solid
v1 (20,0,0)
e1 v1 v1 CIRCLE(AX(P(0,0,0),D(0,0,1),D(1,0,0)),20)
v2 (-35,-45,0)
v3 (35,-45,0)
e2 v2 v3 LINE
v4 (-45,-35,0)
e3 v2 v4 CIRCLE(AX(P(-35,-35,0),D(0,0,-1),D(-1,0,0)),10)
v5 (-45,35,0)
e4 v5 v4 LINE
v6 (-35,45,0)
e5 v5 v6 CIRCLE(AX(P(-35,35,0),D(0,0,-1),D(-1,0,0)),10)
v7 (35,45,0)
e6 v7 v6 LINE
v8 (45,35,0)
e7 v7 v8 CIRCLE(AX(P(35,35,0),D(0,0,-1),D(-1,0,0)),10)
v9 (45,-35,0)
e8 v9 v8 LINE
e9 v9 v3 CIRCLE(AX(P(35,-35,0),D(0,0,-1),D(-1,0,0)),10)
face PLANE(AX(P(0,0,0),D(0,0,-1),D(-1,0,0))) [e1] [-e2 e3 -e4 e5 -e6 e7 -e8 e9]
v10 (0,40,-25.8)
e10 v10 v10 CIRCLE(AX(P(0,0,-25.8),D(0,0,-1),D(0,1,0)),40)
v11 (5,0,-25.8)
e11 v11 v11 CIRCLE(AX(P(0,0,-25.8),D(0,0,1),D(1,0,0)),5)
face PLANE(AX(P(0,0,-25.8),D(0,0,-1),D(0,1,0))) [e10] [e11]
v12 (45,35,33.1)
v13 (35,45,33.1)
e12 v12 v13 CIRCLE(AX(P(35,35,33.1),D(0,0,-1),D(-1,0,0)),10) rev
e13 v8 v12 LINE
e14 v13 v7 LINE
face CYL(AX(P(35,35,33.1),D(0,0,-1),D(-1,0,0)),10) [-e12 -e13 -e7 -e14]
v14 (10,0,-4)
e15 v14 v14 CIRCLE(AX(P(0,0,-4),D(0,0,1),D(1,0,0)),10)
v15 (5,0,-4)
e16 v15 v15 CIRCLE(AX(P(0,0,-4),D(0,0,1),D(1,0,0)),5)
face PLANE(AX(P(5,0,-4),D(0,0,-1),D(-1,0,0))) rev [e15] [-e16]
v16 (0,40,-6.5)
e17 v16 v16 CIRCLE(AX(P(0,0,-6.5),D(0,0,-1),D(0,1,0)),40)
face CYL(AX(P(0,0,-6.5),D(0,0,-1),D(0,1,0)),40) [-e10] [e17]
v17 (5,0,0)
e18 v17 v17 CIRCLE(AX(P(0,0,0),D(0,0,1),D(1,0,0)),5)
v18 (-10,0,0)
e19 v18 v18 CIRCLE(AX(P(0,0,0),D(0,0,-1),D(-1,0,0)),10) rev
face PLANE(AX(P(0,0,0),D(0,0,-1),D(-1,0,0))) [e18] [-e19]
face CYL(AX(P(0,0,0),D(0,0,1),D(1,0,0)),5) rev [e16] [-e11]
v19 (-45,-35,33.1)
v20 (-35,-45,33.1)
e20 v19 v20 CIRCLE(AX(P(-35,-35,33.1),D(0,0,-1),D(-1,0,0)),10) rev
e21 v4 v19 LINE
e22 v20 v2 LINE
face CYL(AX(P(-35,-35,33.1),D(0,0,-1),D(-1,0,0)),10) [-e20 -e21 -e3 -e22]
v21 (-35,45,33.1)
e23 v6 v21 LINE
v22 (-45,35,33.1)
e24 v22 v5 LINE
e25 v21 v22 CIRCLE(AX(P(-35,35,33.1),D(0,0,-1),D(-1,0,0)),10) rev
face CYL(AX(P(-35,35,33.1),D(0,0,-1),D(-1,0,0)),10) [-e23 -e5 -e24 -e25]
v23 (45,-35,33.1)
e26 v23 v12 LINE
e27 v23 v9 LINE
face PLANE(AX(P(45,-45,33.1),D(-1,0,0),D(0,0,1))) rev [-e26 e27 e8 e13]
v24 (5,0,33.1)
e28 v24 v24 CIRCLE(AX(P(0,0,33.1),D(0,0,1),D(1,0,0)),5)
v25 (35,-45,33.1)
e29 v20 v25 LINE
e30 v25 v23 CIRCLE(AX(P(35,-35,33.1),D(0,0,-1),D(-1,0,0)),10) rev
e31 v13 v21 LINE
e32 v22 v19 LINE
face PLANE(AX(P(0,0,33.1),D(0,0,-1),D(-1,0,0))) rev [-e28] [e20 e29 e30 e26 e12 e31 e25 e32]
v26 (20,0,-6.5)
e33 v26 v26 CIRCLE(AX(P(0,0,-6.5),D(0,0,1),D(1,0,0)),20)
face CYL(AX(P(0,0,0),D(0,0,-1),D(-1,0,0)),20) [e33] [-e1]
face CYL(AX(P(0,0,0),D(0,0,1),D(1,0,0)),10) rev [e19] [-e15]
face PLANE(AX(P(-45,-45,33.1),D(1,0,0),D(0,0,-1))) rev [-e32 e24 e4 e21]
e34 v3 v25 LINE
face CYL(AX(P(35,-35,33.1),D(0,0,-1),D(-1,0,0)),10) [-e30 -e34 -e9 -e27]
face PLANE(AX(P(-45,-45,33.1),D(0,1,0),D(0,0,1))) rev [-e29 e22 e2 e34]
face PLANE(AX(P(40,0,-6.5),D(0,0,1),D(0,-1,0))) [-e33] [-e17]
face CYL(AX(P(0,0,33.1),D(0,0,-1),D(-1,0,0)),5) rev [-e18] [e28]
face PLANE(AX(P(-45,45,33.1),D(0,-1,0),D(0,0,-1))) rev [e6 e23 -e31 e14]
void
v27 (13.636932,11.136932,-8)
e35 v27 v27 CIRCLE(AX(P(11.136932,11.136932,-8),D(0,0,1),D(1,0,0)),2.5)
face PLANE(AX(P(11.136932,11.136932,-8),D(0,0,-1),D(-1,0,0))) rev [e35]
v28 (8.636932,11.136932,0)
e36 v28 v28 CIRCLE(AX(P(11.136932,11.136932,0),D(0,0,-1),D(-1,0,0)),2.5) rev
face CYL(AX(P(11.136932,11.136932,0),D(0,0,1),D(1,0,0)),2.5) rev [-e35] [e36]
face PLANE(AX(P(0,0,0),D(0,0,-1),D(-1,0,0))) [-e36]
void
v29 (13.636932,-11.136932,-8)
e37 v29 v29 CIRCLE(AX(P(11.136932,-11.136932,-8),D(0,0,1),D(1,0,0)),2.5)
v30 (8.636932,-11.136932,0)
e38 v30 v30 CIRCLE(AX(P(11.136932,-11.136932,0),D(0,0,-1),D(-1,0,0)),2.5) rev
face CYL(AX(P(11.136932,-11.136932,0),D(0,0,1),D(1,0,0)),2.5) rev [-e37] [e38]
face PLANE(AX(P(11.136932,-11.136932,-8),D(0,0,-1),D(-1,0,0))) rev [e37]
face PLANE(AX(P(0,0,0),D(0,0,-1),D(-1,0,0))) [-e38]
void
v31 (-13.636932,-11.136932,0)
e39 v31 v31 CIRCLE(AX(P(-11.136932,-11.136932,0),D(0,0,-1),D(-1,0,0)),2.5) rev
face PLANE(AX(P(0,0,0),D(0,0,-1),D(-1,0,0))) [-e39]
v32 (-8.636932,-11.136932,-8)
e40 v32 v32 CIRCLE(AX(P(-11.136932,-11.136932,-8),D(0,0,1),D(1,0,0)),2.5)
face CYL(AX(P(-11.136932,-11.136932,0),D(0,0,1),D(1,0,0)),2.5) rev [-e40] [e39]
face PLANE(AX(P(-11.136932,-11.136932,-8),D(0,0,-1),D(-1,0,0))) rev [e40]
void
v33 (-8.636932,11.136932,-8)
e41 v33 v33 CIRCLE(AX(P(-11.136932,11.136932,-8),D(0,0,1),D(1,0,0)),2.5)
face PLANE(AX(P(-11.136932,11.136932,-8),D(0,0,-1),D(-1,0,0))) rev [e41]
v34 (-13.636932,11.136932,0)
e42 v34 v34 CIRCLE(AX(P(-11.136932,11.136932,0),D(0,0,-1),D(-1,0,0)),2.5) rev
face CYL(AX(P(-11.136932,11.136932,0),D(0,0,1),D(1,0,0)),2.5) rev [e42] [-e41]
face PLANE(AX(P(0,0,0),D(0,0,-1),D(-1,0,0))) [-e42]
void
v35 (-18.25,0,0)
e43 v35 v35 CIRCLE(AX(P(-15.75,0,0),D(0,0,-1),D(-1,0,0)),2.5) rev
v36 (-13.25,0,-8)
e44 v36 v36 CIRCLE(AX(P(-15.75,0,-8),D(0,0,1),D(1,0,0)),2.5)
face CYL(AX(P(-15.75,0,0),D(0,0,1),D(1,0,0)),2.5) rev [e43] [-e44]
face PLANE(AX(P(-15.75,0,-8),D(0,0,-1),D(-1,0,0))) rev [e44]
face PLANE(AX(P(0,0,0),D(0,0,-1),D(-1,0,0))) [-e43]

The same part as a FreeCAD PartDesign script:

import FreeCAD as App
import Part
import Sketcher
from FreeCAD import Vector
Q = App.Units.Quantity


def edges_at(feature, points):
    """Names of the edges that pass closest to the given points."""
    edges = feature.Shape.Edges
    near = lambda p: min(range(len(edges)), key=lambda i: edges[i].distToShape(Part.Vertex(*p))[0])
    return sorted({f"Edge{near(p) + 1}" for p in points})

doc = App.newDocument("Part")
body = doc.addObject("PartDesign::Body", "Body")

# Sketch on XZ plane
sketch1 = body.newObject("Sketcher::SketchObject", "Sketch")
sketch1.AttachmentSupport = (doc.getObject("XZ_Plane"), [""])
sketch1.MapMode = "FlatFace"
sketch1.addGeometry(Part.LineSegment(Vector(0, -6, 0), Vector(0, -26, 0)), False)
sketch1.addGeometry(Part.LineSegment(Vector(0, -26, 0), Vector(40, -26, 0)), False)
sketch1.addGeometry(Part.LineSegment(Vector(40, -26, 0), Vector(40, -6, 0)), False)
sketch1.addGeometry(Part.LineSegment(Vector(40, -6, 0), Vector(0, -6, 0)), False)
sketch1.addConstraint(Sketcher.Constraint("Coincident", 0, 2, 1, 1))
sketch1.addConstraint(Sketcher.Constraint("Coincident", 1, 2, 2, 1))
sketch1.addConstraint(Sketcher.Constraint("Coincident", 2, 2, 3, 1))
sketch1.addConstraint(Sketcher.Constraint("Coincident", 3, 2, 0, 1))
sketch1.addConstraint(Sketcher.Constraint("Vertical", 0))
sketch1.addConstraint(Sketcher.Constraint("Horizontal", 1))
sketch1.addConstraint(Sketcher.Constraint("Vertical", 2))
sketch1.addConstraint(Sketcher.Constraint("Horizontal", 3))
sketch1.addConstraint(Sketcher.Constraint("PointOnObject", 0, 2, -2))
sketch1.addConstraint(Sketcher.Constraint("DistanceX", 1, 1, 1, 2, Q("40 mm")))
sketch1.addConstraint(Sketcher.Constraint("DistanceY", 0, 2, 0, 1, Q("19.3 mm")))
sketch1.addConstraint(Sketcher.Constraint("DistanceY", 0, 2, -1, 1, Q("25.8 mm")))
revolution = body.newObject("PartDesign::Revolution", "Revolution")
revolution.Profile = sketch1
revolution.ReferenceAxis = (sketch1, ["V_Axis"])
revolution.Angle = 360

# Sketch on XY plane
sketch2 = body.newObject("Sketcher::SketchObject", "Sketch001")
sketch2.AttachmentSupport = (doc.getObject("XY_Plane"), [""])
sketch2.MapMode = "FlatFace"
sketch2.AttachmentOffset = App.Placement(Vector(0, 0, -6.5), App.Rotation())
sketch2.addGeometry(Part.Circle(Vector(0, 0, 0), Vector(0, 0, 1), 20), False)
sketch2.addConstraint(Sketcher.Constraint("Coincident", 0, 3, -1, 1))
sketch2.addConstraint(Sketcher.Constraint("Diameter", 0, Q("40 mm")))
pad1 = body.newObject("PartDesign::Pad", "Pad")
pad1.Profile = sketch2
pad1.Length = 6.5

# Sketch on XY plane
sketch3 = body.newObject("Sketcher::SketchObject", "Sketch002")
sketch3.AttachmentSupport = (doc.getObject("XY_Plane"), [""])
sketch3.MapMode = "FlatFace"
sketch3.addGeometry(Part.Circle(Vector(0, 0, 0), Vector(0, 0, 1), 5), False)
sketch3.addConstraint(Sketcher.Constraint("Coincident", 0, 3, -1, 1))
sketch3.addConstraint(Sketcher.Constraint("Diameter", 0, Q("10 mm")))
doc.recompute()
hole = body.newObject("PartDesign::Hole", "Hole")
hole.Profile = sketch3
hole.ThreadType = "None"
hole.Diameter = 10
hole.DepthType = "ThroughAll"
hole.HoleCutType = "Counterbore"
hole.HoleCutDiameter = 20
hole.HoleCutDepth = 4

# Sketch on XY plane
sketch4 = body.newObject("Sketcher::SketchObject", "Sketch003")
sketch4.AttachmentSupport = (doc.getObject("XY_Plane"), [""])
sketch4.MapMode = "FlatFace"
sketch4.addGeometry(Part.Circle(Vector(-15.8, 0, 0), Vector(0, 0, 1), 2.5), False)
sketch4.addGeometry(Part.Circle(Vector(-11.1, 11.1, 0), Vector(0, 0, 1), 2.5), False)
sketch4.addGeometry(Part.Circle(Vector(-11.1, -11.1, 0), Vector(0, 0, 1), 2.5), False)
sketch4.addGeometry(Part.Circle(Vector(11.1, -11.1, 0), Vector(0, 0, 1), 2.5), False)
sketch4.addGeometry(Part.Circle(Vector(11.1, 11.1, 0), Vector(0, 0, 1), 2.5), False)
sketch4.addConstraint(Sketcher.Constraint("Equal", 0, 1))
sketch4.addConstraint(Sketcher.Constraint("Equal", 1, 2))
sketch4.addConstraint(Sketcher.Constraint("Equal", 2, 3))
sketch4.addConstraint(Sketcher.Constraint("Equal", 3, 4))
sketch4.addConstraint(Sketcher.Constraint("Symmetric", 1, 3, 3, 3, -1, 1))
sketch4.addConstraint(Sketcher.Constraint("Symmetric", 2, 3, 4, 3, -1, 1))
sketch4.addConstraint(Sketcher.Constraint("Symmetric", 2, 3, 3, 3, -2))
sketch4.addConstraint(Sketcher.Constraint("PointOnObject", 0, 3, -1))
sketch4.addConstraint(Sketcher.Constraint("Diameter", 0, Q("5 mm")))
sketch4.addConstraint(Sketcher.Constraint("DistanceX", 0, 3, -1, 1, Q("15.75 mm")))
sketch4.addConstraint(Sketcher.Constraint("DistanceX", 1, 3, -1, 1, Q("11.136932 mm")))
sketch4.addConstraint(Sketcher.Constraint("DistanceY", -1, 1, 1, 3, Q("11.136932 mm")))
doc.recompute()
hole2 = body.newObject("PartDesign::Hole", "Hole001")
hole2.Profile = sketch4
hole2.ThreadType = "None"
hole2.Diameter = 5
hole2.DepthType = "Dimension"
hole2.Depth = 8
hole2.DrillPoint = "Flat"

# Sketch on XY plane
sketch5 = body.newObject("Sketcher::SketchObject", "Sketch004")
sketch5.AttachmentSupport = (doc.getObject("XY_Plane"), [""])
sketch5.MapMode = "FlatFace"
sketch5.addGeometry(Part.LineSegment(Vector(-45, 45, 0), Vector(-45, -45, 0)), False)
sketch5.addGeometry(Part.LineSegment(Vector(-45, -45, 0), Vector(45, -45, 0)), False)
sketch5.addGeometry(Part.LineSegment(Vector(45, -45, 0), Vector(45, 45, 0)), False)
sketch5.addGeometry(Part.LineSegment(Vector(45, 45, 0), Vector(-45, 45, 0)), False)
sketch5.addGeometry(Part.Circle(Vector(0, 0, 0), Vector(0, 0, 1), 5), False)
sketch5.addConstraint(Sketcher.Constraint("Coincident", 0, 2, 1, 1))
sketch5.addConstraint(Sketcher.Constraint("Coincident", 1, 2, 2, 1))
sketch5.addConstraint(Sketcher.Constraint("Coincident", 2, 2, 3, 1))
sketch5.addConstraint(Sketcher.Constraint("Coincident", 3, 2, 0, 1))
sketch5.addConstraint(Sketcher.Constraint("Vertical", 0))
sketch5.addConstraint(Sketcher.Constraint("Horizontal", 1))
sketch5.addConstraint(Sketcher.Constraint("Vertical", 2))
sketch5.addConstraint(Sketcher.Constraint("Horizontal", 3))
sketch5.addConstraint(Sketcher.Constraint("Coincident", 4, 3, -1, 1))
sketch5.addConstraint(Sketcher.Constraint("Symmetric", 0, 2, 2, 2, -1, 1))
sketch5.addConstraint(Sketcher.Constraint("Equal", 3, 0))
sketch5.addConstraint(Sketcher.Constraint("Diameter", 4, Q("10 mm")))
sketch5.addConstraint(Sketcher.Constraint("DistanceX", 1, 1, 1, 2, Q("90 mm")))
pad2 = body.newObject("PartDesign::Pad", "Pad001")
pad2.Profile = sketch5
pad2.Length = 33.1
doc.recompute()

fillet = body.newObject("PartDesign::Fillet", "Fillet")
fillet.Base = (pad2, edges_at(pad2, [
    (45, -45, 16.55),
    (45, 45, 16.55),
    (-45, 45, 16.55),
    (-45, -45, 16.55),
]))
fillet.Radius = 10

doc.recompute()
